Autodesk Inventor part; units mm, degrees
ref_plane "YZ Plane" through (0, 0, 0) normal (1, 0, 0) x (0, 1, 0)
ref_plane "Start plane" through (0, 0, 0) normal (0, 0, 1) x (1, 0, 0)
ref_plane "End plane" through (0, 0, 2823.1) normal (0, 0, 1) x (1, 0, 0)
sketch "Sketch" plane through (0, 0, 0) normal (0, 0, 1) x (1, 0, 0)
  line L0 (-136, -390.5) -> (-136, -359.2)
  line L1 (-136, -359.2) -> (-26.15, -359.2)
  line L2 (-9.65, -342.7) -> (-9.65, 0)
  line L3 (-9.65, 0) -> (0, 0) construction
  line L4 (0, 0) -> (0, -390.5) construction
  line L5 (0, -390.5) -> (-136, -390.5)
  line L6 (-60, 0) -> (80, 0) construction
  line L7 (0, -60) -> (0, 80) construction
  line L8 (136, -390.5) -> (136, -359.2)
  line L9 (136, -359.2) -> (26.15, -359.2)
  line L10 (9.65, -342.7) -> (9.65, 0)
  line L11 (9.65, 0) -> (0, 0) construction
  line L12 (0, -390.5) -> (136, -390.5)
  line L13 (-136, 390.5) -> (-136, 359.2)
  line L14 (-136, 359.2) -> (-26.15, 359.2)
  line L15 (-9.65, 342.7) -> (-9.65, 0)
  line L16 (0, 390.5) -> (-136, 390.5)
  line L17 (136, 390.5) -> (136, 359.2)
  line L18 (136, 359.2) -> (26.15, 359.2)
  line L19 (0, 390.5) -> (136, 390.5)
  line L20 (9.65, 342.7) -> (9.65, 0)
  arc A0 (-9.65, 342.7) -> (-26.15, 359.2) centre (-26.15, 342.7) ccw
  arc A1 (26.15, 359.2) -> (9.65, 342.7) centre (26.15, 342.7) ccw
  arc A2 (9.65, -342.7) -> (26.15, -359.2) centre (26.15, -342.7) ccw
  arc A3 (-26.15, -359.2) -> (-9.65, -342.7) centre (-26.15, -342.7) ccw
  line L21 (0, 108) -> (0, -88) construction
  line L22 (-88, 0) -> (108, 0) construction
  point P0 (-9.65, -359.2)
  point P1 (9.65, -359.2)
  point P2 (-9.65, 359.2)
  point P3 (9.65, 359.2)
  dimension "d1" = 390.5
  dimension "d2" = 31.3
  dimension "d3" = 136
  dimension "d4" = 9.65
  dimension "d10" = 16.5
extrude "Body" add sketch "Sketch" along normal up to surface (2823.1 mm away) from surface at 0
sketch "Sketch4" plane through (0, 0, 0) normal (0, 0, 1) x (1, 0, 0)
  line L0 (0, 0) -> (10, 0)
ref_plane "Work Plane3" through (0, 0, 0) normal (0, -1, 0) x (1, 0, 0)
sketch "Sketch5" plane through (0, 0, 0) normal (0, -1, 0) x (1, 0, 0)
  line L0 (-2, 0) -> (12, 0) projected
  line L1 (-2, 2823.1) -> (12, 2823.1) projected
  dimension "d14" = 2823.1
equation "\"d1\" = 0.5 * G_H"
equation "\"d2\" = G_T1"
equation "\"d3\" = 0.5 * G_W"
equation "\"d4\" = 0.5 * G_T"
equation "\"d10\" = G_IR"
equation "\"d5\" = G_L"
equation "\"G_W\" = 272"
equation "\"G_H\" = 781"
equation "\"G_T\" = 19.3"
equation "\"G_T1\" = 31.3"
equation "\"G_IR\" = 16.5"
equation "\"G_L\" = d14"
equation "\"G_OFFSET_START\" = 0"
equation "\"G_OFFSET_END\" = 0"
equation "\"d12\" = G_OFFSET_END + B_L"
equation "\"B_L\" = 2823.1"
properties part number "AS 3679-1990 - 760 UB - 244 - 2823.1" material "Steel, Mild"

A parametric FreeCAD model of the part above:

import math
import FreeCAD as App
import Part
import Sketcher
from FreeCAD import Vector

doc = App.newDocument("Part")
body = doc.addObject("PartDesign::Body", "Body")

sketch1 = body.newObject("Sketcher::SketchObject", "Sketch")
sketch1.AttachmentSupport = (doc.getObject("XY_Plane"), [""])
sketch1.MapMode = "FlatFace"
sketch1.addGeometry([
    Part.LineSegment(Vector(-136, -359, 0), Vector(-136, -390, 0)),
    Part.LineSegment(Vector(-136, -390, 0), Vector(136, -390, 0)),
    Part.LineSegment(Vector(136, -390, 0), Vector(136, -359, 0)),
    Part.LineSegment(Vector(136, -359, 0), Vector(26, -359, 0)),
    Part.ArcOfCircle(Part.Circle(Vector(26, -343, 0), Vector(0, 0, 1), 16), math.radians(180), math.radians(270)),
    Part.LineSegment(Vector(10, -343, 0), Vector(10, 343, 0)),
    Part.ArcOfCircle(Part.Circle(Vector(26, 343, 0), Vector(0, 0, 1), 16), math.radians(90), math.radians(180)),
    Part.LineSegment(Vector(26, 359, 0), Vector(136, 359, 0)),
    Part.LineSegment(Vector(136, 359, 0), Vector(136, 390, 0)),
    Part.LineSegment(Vector(136, 390, 0), Vector(-136, 390, 0)),
    Part.LineSegment(Vector(-136, 390, 0), Vector(-136, 359, 0)),
    Part.LineSegment(Vector(-136, 359, 0), Vector(-26, 359, 0)),
    Part.ArcOfCircle(Part.Circle(Vector(-26, 343, 0), Vector(0, 0, 1), 16), math.radians(0), math.radians(90)),
    Part.LineSegment(Vector(-10, 343, 0), Vector(-10, -343, 0)),
    Part.ArcOfCircle(Part.Circle(Vector(-26, -343, 0), Vector(0, 0, 1), 16), math.radians(-90), math.radians(0)),
    Part.LineSegment(Vector(-26, -359, 0), Vector(-136, -359, 0)),
], False)
sketch1.addConstraint([
    Sketcher.Constraint("Coincident", 0, 2, 1, 1),
    Sketcher.Constraint("Coincident", 1, 2, 2, 1),
    Sketcher.Constraint("Coincident", 2, 2, 3, 1),
    Sketcher.Constraint("Tangent", 3, 2, 4, 2),
    Sketcher.Constraint("Tangent", 4, 1, 5, 1),
    Sketcher.Constraint("Tangent", 5, 2, 6, 2),
    Sketcher.Constraint("Tangent", 6, 1, 7, 1),
    Sketcher.Constraint("Coincident", 7, 2, 8, 1),
    Sketcher.Constraint("Coincident", 8, 2, 9, 1),
    Sketcher.Constraint("Coincident", 9, 2, 10, 1),
    Sketcher.Constraint("Coincident", 10, 2, 11, 1),
    Sketcher.Constraint("Tangent", 11, 2, 12, 2),
    Sketcher.Constraint("Tangent", 12, 1, 13, 1),
    Sketcher.Constraint("Tangent", 13, 2, 14, 2),
    Sketcher.Constraint("Tangent", 14, 1, 15, 1),
    Sketcher.Constraint("Coincident", 15, 2, 0, 1),
    Sketcher.Constraint("Vertical", 0),
    Sketcher.Constraint("Horizontal", 1),
    Sketcher.Constraint("Vertical", 2),
    Sketcher.Constraint("Horizontal", 3),
    Sketcher.Constraint("Vertical", 5),
    Sketcher.Constraint("Horizontal", 7),
    Sketcher.Constraint("Vertical", 8),
    Sketcher.Constraint("Horizontal", 9),
    Sketcher.Constraint("Vertical", 10),
    Sketcher.Constraint("Horizontal", 11),
    Sketcher.Constraint("Vertical", 13),
    Sketcher.Constraint("Horizontal", 15),
    Sketcher.Constraint("Equal", 4, 6),
    Sketcher.Constraint("Equal", 6, 12),
    Sketcher.Constraint("Equal", 12, 14),
    Sketcher.Constraint("Symmetric", 4, 3, 12, 3, -1, 1),
    Sketcher.Constraint("Symmetric", 0, 2, 8, 2, -1, 1),
    Sketcher.Constraint("Symmetric", 7, 2, 10, 2, -2),
    Sketcher.Constraint("Symmetric", 2, 2, 15, 2, -2),
    Sketcher.Constraint("Radius", 4, 16.5),
    Sketcher.Constraint("DistanceY", 0, 2, 0, 1, 31.3),
    Sketcher.Constraint("DistanceX", 0, 2, -1, 1, 136.0),
    Sketcher.Constraint("DistanceY", 0, 2, -1, 1, 390.5),
    Sketcher.Constraint("DistanceX", -1, 1, 4, 1, 9.65),
])
pad1 = body.newObject("PartDesign::Pad", "Pad")
pad1.Profile = sketch1
pad1.Length = 2823.1

doc.recompute()
